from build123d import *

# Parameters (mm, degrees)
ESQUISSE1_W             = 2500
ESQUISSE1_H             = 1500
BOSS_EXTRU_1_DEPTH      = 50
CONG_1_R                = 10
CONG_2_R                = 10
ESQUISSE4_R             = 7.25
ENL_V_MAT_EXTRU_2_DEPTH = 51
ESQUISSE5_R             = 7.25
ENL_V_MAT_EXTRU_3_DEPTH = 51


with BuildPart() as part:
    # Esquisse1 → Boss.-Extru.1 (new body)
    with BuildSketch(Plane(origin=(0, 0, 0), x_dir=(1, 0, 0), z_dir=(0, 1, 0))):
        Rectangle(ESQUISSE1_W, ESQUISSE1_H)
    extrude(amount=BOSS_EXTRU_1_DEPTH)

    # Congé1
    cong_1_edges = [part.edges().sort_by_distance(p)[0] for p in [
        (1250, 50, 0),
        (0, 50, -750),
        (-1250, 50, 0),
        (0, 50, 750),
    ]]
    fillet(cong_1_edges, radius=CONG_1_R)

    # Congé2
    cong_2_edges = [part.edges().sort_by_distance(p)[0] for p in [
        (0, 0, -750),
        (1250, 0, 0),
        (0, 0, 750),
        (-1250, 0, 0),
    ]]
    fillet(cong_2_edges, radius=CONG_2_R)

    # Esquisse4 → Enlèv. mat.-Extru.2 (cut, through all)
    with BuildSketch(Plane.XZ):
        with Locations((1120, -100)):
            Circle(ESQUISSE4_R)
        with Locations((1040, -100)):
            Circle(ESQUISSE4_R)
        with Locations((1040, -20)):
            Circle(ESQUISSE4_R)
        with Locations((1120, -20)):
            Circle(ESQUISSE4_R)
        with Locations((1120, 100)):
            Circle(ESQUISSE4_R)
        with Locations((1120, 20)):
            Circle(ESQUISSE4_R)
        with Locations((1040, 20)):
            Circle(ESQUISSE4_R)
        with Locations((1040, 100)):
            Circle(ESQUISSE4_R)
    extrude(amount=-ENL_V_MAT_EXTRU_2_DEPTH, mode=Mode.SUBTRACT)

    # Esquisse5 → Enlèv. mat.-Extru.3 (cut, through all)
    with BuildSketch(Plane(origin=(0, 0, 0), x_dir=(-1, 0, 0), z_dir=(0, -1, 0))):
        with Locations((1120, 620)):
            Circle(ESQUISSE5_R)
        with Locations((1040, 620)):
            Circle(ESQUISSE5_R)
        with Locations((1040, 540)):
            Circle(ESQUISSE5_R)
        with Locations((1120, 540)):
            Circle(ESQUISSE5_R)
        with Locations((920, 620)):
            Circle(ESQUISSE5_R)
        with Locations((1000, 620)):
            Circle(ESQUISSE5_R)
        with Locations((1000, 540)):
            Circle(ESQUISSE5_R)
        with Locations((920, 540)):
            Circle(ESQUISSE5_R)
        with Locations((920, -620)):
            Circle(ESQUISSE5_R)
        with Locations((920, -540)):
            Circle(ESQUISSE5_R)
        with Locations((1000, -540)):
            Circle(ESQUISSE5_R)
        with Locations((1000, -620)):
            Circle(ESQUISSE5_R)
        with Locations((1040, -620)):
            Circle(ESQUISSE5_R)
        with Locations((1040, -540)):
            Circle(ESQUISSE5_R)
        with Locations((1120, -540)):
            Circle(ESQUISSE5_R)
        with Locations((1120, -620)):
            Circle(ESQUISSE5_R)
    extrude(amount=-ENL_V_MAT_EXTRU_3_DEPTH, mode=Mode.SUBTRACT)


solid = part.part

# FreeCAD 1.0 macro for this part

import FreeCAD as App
import Part
import Sketcher

V = App.Vector


def edges_at(feature, points):
    """Names of the edges that pass closest to the given points."""
    edges = feature.Shape.Edges
    near = lambda p: min(range(len(edges)), key=lambda i: edges[i].distToShape(Part.Vertex(*p))[0])
    return sorted({f"Edge{near(p) + 1}" for p in points})

doc = App.newDocument("Part")
body = doc.addObject("PartDesign::Body", "Body")

# Sketch on XZ plane
sketch1 = body.newObject("Sketcher::SketchObject", "Sketch")
sketch1.AttachmentSupport = (doc.getObject("XZ_Plane"), [""])
sketch1.MapMode = "FlatFace"
sketch1.addGeometry(Part.LineSegment(V(-1250, -750, 0), V(-1250, 750, 0)), False)
sketch1.addGeometry(Part.LineSegment(V(-1250, 750, 0), V(1250, 750, 0)), False)
sketch1.addGeometry(Part.LineSegment(V(1250, 750, 0), V(1250, -750, 0)), False)
sketch1.addGeometry(Part.LineSegment(V(1250, -750, 0), V(-1250, -750, 0)), False)
sketch1.addConstraint(Sketcher.Constraint("Coincident", 0, 2, 1, 1))
sketch1.addConstraint(Sketcher.Constraint("Coincident", 1, 2, 2, 1))
sketch1.addConstraint(Sketcher.Constraint("Coincident", 2, 2, 3, 1))
sketch1.addConstraint(Sketcher.Constraint("Coincident", 3, 2, 0, 1))
sketch1.addConstraint(Sketcher.Constraint("Vertical", 0))
sketch1.addConstraint(Sketcher.Constraint("Horizontal", 1))
sketch1.addConstraint(Sketcher.Constraint("Vertical", 2))
sketch1.addConstraint(Sketcher.Constraint("Horizontal", 3))
sketch1.addConstraint(Sketcher.Constraint("Symmetric", 0, 2, 2, 2, -1, 1))
sketch1.addConstraint(Sketcher.Constraint("DistanceX", 1, 1, 1, 2, 2500.0))
sketch1.addConstraint(Sketcher.Constraint("DistanceY", 0, 1, 0, 2, 1500.0))
pad1 = body.newObject("PartDesign::Pad", "Pad")
pad1.Profile = sketch1
pad1.Length = 50
pad1.Reversed = True
doc.recompute()

fillet = body.newObject("PartDesign::Fillet", "Fillet")
fillet.Base = (pad1, edges_at(pad1, [
    (1250, 50, 0),
    (0, 50, -750),
    (-1250, 50, 0),
    (0, 50, 750),
]))
fillet.Radius = 10
doc.recompute()

fillet2 = body.newObject("PartDesign::Fillet", "Fillet001")
fillet2.Base = (fillet, edges_at(fillet, [
    (0, 0, -750),
    (1250, 0, 0),
    (0, 0, 750),
    (-1250, 0, 0),
]))
fillet2.Radius = 10

# Sketch on XZ plane
sketch2 = body.newObject("Sketcher::SketchObject", "Sketch001")
sketch2.AttachmentSupport = (doc.getObject("XZ_Plane"), [""])
sketch2.MapMode = "FlatFace"
sketch2.addGeometry(Part.Circle(V(1120, -100, 0), V(0, 0, 1), 7.25), False)
sketch2.addGeometry(Part.Circle(V(1040, -100, 0), V(0, 0, 1), 7.25), False)
sketch2.addGeometry(Part.Circle(V(1040, -20, 0), V(0, 0, 1), 7.25), False)
sketch2.addGeometry(Part.Circle(V(1120, -20, 0), V(0, 0, 1), 7.25), False)
sketch2.addGeometry(Part.Circle(V(1120, 100, 0), V(0, 0, 1), 7.25), False)
sketch2.addGeometry(Part.Circle(V(1120, 20, 0), V(0, 0, 1), 7.25), False)
sketch2.addGeometry(Part.Circle(V(1040, 20, 0), V(0, 0, 1), 7.25), False)
sketch2.addGeometry(Part.Circle(V(1040, 100, 0), V(0, 0, 1), 7.25), False)
sketch2.addConstraint(Sketcher.Constraint("Equal", 0, 1))
sketch2.addConstraint(Sketcher.Constraint("Equal", 1, 2))
sketch2.addConstraint(Sketcher.Constraint("Equal", 2, 3))
sketch2.addConstraint(Sketcher.Constraint("Equal", 3, 4))
sketch2.addConstraint(Sketcher.Constraint("Equal", 4, 5))
sketch2.addConstraint(Sketcher.Constraint("Equal", 5, 6))
sketch2.addConstraint(Sketcher.Constraint("Equal", 6, 7))
sketch2.addConstraint(Sketcher.Constraint("Symmetric", 0, 3, 4, 3, -1))
sketch2.addConstraint(Sketcher.Constraint("Symmetric", 3, 3, 5, 3, -1))
sketch2.addConstraint(Sketcher.Constraint("Symmetric", 2, 3, 6, 3, -1))
sketch2.addConstraint(Sketcher.Constraint("Symmetric", 1, 3, 7, 3, -1))
sketch2.addConstraint(Sketcher.Constraint("Horizontal", 0, 3, 1, 3))
sketch2.addConstraint(Sketcher.Constraint("Horizontal", 2, 3, 3, 3))
sketch2.addConstraint(Sketcher.Constraint("Vertical", 1, 3, 2, 3))
sketch2.addConstraint(Sketcher.Constraint("Vertical", 0, 3, 3, 3))
sketch2.addConstraint(Sketcher.Constraint("Diameter", 0, 14.5))
sketch2.addConstraint(Sketcher.Constraint("DistanceX", -1, 1, 0, 3, 1120.0))
sketch2.addConstraint(Sketcher.Constraint("DistanceY", 0, 3, -1, 1, 100.0))
sketch2.addConstraint(Sketcher.Constraint("DistanceX", -1, 1, 1, 3, 1040.0))
sketch2.addConstraint(Sketcher.Constraint("DistanceY", 2, 3, -1, 1, 20.0))
pocket1 = body.newObject("PartDesign::Pocket", "Pocket")
pocket1.Profile = sketch2
pocket1.Type = "ThroughAll"

# Sketch on XZ plane
sketch3 = body.newObject("Sketcher::SketchObject", "Sketch002")
sketch3.AttachmentSupport = (doc.getObject("XZ_Plane"), [""])
sketch3.MapMode = "FlatFace"
sketch3.addGeometry(Part.Circle(V(-1120, -620, 0), V(0, 0, 1), 7.25), False)
sketch3.addGeometry(Part.Circle(V(-1040, -620, 0), V(0, 0, 1), 7.25), False)
sketch3.addGeometry(Part.Circle(V(-1040, -540, 0), V(0, 0, 1), 7.25), False)
sketch3.addGeometry(Part.Circle(V(-1120, -540, 0), V(0, 0, 1), 7.25), False)
sketch3.addGeometry(Part.Circle(V(-920, -620, 0), V(0, 0, 1), 7.25), False)
sketch3.addGeometry(Part.Circle(V(-1000, -620, 0), V(0, 0, 1), 7.25), False)
sketch3.addGeometry(Part.Circle(V(-1000, -540, 0), V(0, 0, 1), 7.25), False)
sketch3.addGeometry(Part.Circle(V(-920, -540, 0), V(0, 0, 1), 7.25), False)
sketch3.addGeometry(Part.Circle(V(-920, 620, 0), V(0, 0, 1), 7.25), False)
sketch3.addGeometry(Part.Circle(V(-920, 540, 0), V(0, 0, 1), 7.25), False)
sketch3.addGeometry(Part.Circle(V(-1000, 540, 0), V(0, 0, 1), 7.25), False)
sketch3.addGeometry(Part.Circle(V(-1000, 620, 0), V(0, 0, 1), 7.25), False)
sketch3.addGeometry(Part.Circle(V(-1040, 620, 0), V(0, 0, 1), 7.25), False)
sketch3.addGeometry(Part.Circle(V(-1040, 540, 0), V(0, 0, 1), 7.25), False)
sketch3.addGeometry(Part.Circle(V(-1120, 540, 0), V(0, 0, 1), 7.25), False)
sketch3.addGeometry(Part.Circle(V(-1120, 620, 0), V(0, 0, 1), 7.25), False)
sketch3.addConstraint(Sketcher.Constraint("Equal", 0, 1))
sketch3.addConstraint(Sketcher.Constraint("Equal", 1, 2))
sketch3.addConstraint(Sketcher.Constraint("Equal", 2, 3))
sketch3.addConstraint(Sketcher.Constraint("Equal", 3, 4))
sketch3.addConstraint(Sketcher.Constraint("Equal", 4, 5))
sketch3.addConstraint(Sketcher.Constraint("Equal", 5, 6))
sketch3.addConstraint(Sketcher.Constraint("Equal", 6, 7))
sketch3.addConstraint(Sketcher.Constraint("Equal", 7, 8))
sketch3.addConstraint(Sketcher.Constraint("Equal", 8, 9))
sketch3.addConstraint(Sketcher.Constraint("Equal", 9, 10))
sketch3.addConstraint(Sketcher.Constraint("Equal", 10, 11))
sketch3.addConstraint(Sketcher.Constraint("Equal", 11, 12))
sketch3.addConstraint(Sketcher.Constraint("Equal", 12, 13))
sketch3.addConstraint(Sketcher.Constraint("Equal", 13, 14))
sketch3.addConstraint(Sketcher.Constraint("Equal", 14, 15))
sketch3.addConstraint(Sketcher.Constraint("Symmetric", 4, 3, 8, 3, -1))
sketch3.addConstraint(Sketcher.Constraint("Symmetric", 7, 3, 9, 3, -1))
sketch3.addConstraint(Sketcher.Constraint("Symmetric", 6, 3, 10, 3, -1))
sketch3.addConstraint(Sketcher.Constraint("Symmetric", 5, 3, 11, 3, -1))
sketch3.addConstraint(Sketcher.Constraint("Symmetric", 1, 3, 12, 3, -1))
sketch3.addConstraint(Sketcher.Constraint("Symmetric", 2, 3, 13, 3, -1))
sketch3.addConstraint(Sketcher.Constraint("Symmetric", 3, 3, 14, 3, -1))
sketch3.addConstraint(Sketcher.Constraint("Symmetric", 0, 3, 15, 3, -1))
sketch3.addConstraint(Sketcher.Constraint("Horizontal", 0, 3, 1, 3))
sketch3.addConstraint(Sketcher.Constraint("Horizontal", 2, 3, 3, 3))
sketch3.addConstraint(Sketcher.Constraint("Horizontal", 1, 3, 4, 3))
sketch3.addConstraint(Sketcher.Constraint("Horizontal", 4, 3, 5, 3))
sketch3.addConstraint(Sketcher.Constraint("Horizontal", 3, 3, 6, 3))
sketch3.addConstraint(Sketcher.Constraint("Horizontal", 6, 3, 7, 3))
sketch3.addConstraint(Sketcher.Constraint("Vertical", 1, 3, 2, 3))
sketch3.addConstraint(Sketcher.Constraint("Vertical", 0, 3, 3, 3))
sketch3.addConstraint(Sketcher.Constraint("Vertical", 5, 3, 6, 3))
sketch3.addConstraint(Sketcher.Constraint("Vertical", 4, 3, 7, 3))
sketch3.addConstraint(Sketcher.Constraint("Diameter", 0, 14.5))
sketch3.addConstraint(Sketcher.Constraint("DistanceX", 0, 3, -1, 1, 1120.0))
sketch3.addConstraint(Sketcher.Constraint("DistanceY", 0, 3, -1, 1, 620.0))
sketch3.addConstraint(Sketcher.Constraint("DistanceX", 1, 3, -1, 1, 1040.0))
sketch3.addConstraint(Sketcher.Constraint("DistanceY", 2, 3, -1, 1, 540.0))
sketch3.addConstraint(Sketcher.Constraint("DistanceX", 4, 3, -1, 1, 920.0))
sketch3.addConstraint(Sketcher.Constraint("DistanceX", 5, 3, -1, 1, 1000.0))
pocket2 = body.newObject("PartDesign::Pocket", "Pocket001")
pocket2.Profile = sketch3
pocket2.Type = "ThroughAll"

doc.recompute()
